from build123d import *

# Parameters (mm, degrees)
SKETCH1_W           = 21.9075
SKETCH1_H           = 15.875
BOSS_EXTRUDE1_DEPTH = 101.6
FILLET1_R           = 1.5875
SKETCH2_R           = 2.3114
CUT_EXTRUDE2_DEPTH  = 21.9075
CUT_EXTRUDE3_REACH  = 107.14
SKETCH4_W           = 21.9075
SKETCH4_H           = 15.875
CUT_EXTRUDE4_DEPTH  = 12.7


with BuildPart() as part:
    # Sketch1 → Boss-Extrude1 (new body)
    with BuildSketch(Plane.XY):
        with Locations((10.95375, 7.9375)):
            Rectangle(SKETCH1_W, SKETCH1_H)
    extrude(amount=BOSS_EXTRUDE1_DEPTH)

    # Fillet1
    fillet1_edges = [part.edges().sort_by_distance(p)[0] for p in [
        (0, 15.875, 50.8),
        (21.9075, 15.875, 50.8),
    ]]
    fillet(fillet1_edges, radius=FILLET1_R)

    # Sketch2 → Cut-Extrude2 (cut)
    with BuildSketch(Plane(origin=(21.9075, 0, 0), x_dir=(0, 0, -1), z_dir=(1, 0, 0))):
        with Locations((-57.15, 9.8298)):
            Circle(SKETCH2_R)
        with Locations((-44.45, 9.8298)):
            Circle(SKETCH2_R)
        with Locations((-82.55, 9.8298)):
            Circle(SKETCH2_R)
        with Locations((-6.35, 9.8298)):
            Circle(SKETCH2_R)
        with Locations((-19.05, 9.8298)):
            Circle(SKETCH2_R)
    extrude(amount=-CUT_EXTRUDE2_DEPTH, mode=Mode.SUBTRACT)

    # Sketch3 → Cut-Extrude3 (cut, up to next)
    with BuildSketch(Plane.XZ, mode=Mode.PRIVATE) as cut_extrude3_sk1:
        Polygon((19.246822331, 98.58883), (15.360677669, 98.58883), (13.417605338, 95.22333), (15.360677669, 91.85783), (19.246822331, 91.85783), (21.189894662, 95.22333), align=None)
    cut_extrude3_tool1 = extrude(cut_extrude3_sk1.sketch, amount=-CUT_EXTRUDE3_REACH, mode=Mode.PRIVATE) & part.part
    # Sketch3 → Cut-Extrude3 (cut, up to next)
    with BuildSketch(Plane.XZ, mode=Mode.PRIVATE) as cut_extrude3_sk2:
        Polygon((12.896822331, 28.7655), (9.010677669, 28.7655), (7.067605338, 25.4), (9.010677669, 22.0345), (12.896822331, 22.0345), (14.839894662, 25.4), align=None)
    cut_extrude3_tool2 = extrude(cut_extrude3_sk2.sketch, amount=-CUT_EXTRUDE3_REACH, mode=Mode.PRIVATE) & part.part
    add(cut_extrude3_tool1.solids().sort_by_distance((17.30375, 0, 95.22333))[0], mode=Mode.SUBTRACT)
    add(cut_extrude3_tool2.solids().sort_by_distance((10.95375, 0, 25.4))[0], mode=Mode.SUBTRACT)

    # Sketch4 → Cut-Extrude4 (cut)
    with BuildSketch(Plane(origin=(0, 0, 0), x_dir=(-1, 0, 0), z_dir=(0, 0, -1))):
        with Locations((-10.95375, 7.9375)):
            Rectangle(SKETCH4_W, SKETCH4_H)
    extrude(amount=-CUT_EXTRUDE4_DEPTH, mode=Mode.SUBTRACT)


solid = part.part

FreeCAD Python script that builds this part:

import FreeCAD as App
import Part
import Sketcher
from FreeCAD import Vector
Q = App.Units.Quantity


def edges_at(feature, points):
    """Names of the edges that pass closest to the given points."""
    edges = feature.Shape.Edges
    near = lambda p: min(range(len(edges)), key=lambda i: edges[i].distToShape(Part.Vertex(*p))[0])
    return sorted({f"Edge{near(p) + 1}" for p in points})

doc = App.newDocument("Part")
body = doc.addObject("PartDesign::Body", "Body")

sketch1 = body.newObject("Sketcher::SketchObject", "Sketch")
sketch1.AttachmentSupport = (doc.getObject("XY_Plane"), [""])
sketch1.MapMode = "FlatFace"
sketch1.addGeometry([
    Part.LineSegment(Vector(0, 16, 0), Vector(0, 0, 0)),
    Part.LineSegment(Vector(0, 0, 0), Vector(22, 0, 0)),
    Part.LineSegment(Vector(22, 0, 0), Vector(22, 16, 0)),
    Part.LineSegment(Vector(22, 16, 0), Vector(0, 16, 0)),
], False)
sketch1.addConstraint([
    Sketcher.Constraint("Coincident", 0, 2, 1, 1),
    Sketcher.Constraint("Coincident", 1, 2, 2, 1),
    Sketcher.Constraint("Coincident", 2, 2, 3, 1),
    Sketcher.Constraint("Coincident", 3, 2, 0, 1),
    Sketcher.Constraint("Vertical", 0),
    Sketcher.Constraint("Horizontal", 1),
    Sketcher.Constraint("Vertical", 2),
    Sketcher.Constraint("Horizontal", 3),
    Sketcher.Constraint("Coincident", 0, 2, -1, 1),
    Sketcher.Constraint("DistanceY", 0, 2, 0, 1, Q("0.625 in")),
    Sketcher.Constraint("DistanceX", 1, 1, 1, 2, Q("0.8625 in")),
])
pad1 = body.newObject("PartDesign::Pad", "Pad")
pad1.Profile = sketch1
pad1.Length = Q("4 in")
doc.recompute()

fillet = body.newObject("PartDesign::Fillet", "Fillet")
fillet.Base = (pad1, edges_at(pad1, [(0, 15.875, 50.8), (21.907, 15.875, 50.8)]))
fillet.Radius = Q("0.0625 in")

sketch2 = body.newObject("Sketcher::SketchObject", "Sketch001")
sketch2.AttachmentSupport = (doc.getObject("YZ_Plane"), [""])
sketch2.MapMode = "FlatFace"
sketch2.AttachmentOffset = App.Placement(Vector(0, 0, 0.8625 * 25.4), App.Rotation())
sketch2.addGeometry([
    Part.Circle(Vector(9.8, 57.1, 0), Vector(0, 0, 1), 2.3),
    Part.Circle(Vector(9.8, 44.5, 0), Vector(0, 0, 1), 2.3),
    Part.Circle(Vector(9.8, 82.5, 0), Vector(0, 0, 1), 2.3),
    Part.Circle(Vector(9.8, 6.3, 0), Vector(0, 0, 1), 2.3),
    Part.Circle(Vector(9.8, 19.1, 0), Vector(0, 0, 1), 2.3),
], False)
sketch2.addConstraint([
    Sketcher.Constraint("Equal", 0, 1),
    Sketcher.Constraint("Equal", 1, 2),
    Sketcher.Constraint("Equal", 2, 3),
    Sketcher.Constraint("Equal", 3, 4),
    Sketcher.Constraint("Vertical", 0, 3, 1, 3),
    Sketcher.Constraint("Vertical", 1, 3, 2, 3),
    Sketcher.Constraint("Vertical", 2, 3, 3, 3),
    Sketcher.Constraint("Vertical", 3, 3, 4, 3),
    Sketcher.Constraint("Diameter", 0, Q("0.182 in")),
    Sketcher.Constraint("DistanceY", 0, 3, 2, 3, Q("1 in")),
    Sketcher.Constraint("DistanceY", 3, 3, 0, 3, Q("2 in")),
    Sketcher.Constraint("DistanceY", 4, 3, 1, 3, Q("1 in")),
    Sketcher.Constraint("DistanceY", 1, 3, 0, 3, Q("0.5 in")),
    Sketcher.Constraint("DistanceY", -1, 1, 0, 3, Q("2.25 in")),
    Sketcher.Constraint("DistanceX", -1, 1, 0, 3, Q("0.387 in")),
])
pocket1 = body.newObject("PartDesign::Pocket", "Pocket")
pocket1.Profile = sketch2
pocket1.Length = Q("0.8625 in")

sketch3 = body.newObject("Sketcher::SketchObject", "Sketch002")
sketch3.AttachmentSupport = (doc.getObject("XZ_Plane"), [""])
sketch3.MapMode = "FlatFace"
sketch3.addGeometry([
    Part.LineSegment(Vector(19.2, 98.6, 0), Vector(15.4, 98.6, 0)),
    Part.LineSegment(Vector(15.4, 98.6, 0), Vector(13.4, 95.2, 0)),
    Part.LineSegment(Vector(13.4, 95.2, 0), Vector(15.4, 91.9, 0)),
    Part.LineSegment(Vector(15.4, 91.9, 0), Vector(19.2, 91.9, 0)),
    Part.LineSegment(Vector(19.2, 91.9, 0), Vector(21.2, 95.2, 0)),
    Part.LineSegment(Vector(21.2, 95.2, 0), Vector(19.2, 98.6, 0)),
], False)
sketch3.addConstraint([
    Sketcher.Constraint("Coincident", 0, 2, 1, 1),
    Sketcher.Constraint("Coincident", 1, 2, 2, 1),
    Sketcher.Constraint("Coincident", 2, 2, 3, 1),
    Sketcher.Constraint("Coincident", 3, 2, 4, 1),
    Sketcher.Constraint("Coincident", 4, 2, 5, 1),
    Sketcher.Constraint("Coincident", 5, 2, 0, 1),
    Sketcher.Constraint("Horizontal", 0),
    Sketcher.Constraint("Horizontal", 3),
    Sketcher.Constraint("Parallel", 1, 4),
    Sketcher.Constraint("Parallel", 2, 5),
    Sketcher.Constraint("Horizontal", 1, 2, 4, 2),
    Sketcher.Constraint("Vertical", 0, 2, 2, 2),
    Sketcher.Constraint("Vertical", 3, 2, 5, 2),
    Sketcher.Constraint("Angle", 1, Q("-120 deg")),
    Sketcher.Constraint("DistanceY", 2, 2, 0, 2, Q("0.265 in")),
    Sketcher.Constraint("DistanceX", 0, 2, 0, 1, Q("3.886145 mm")),
    Sketcher.Constraint("DistanceY", -1, 1, 0, 2, Q("98.58883 mm")),
    Sketcher.Constraint("DistanceX", -1, 1, 0, 2, Q("15.360678 mm")),
])
pocket2 = body.newObject("PartDesign::Pocket", "Pocket001")
pocket2.Profile = sketch3
pocket2.Type = "UpToFirst"

sketch4 = body.newObject("Sketcher::SketchObject", "Sketch003")
sketch4.AttachmentSupport = (doc.getObject("XZ_Plane"), [""])
sketch4.MapMode = "FlatFace"
sketch4.addGeometry([
    Part.LineSegment(Vector(12.9, 28.8, 0), Vector(9, 28.8, 0)),
    Part.LineSegment(Vector(9, 28.8, 0), Vector(7.1, 25.4, 0)),
    Part.LineSegment(Vector(7.1, 25.4, 0), Vector(9, 22, 0)),
    Part.LineSegment(Vector(9, 22, 0), Vector(12.9, 22, 0)),
    Part.LineSegment(Vector(12.9, 22, 0), Vector(14.8, 25.4, 0)),
    Part.LineSegment(Vector(14.8, 25.4, 0), Vector(12.9, 28.8, 0)),
], False)
sketch4.addConstraint([
    Sketcher.Constraint("Coincident", 0, 2, 1, 1),
    Sketcher.Constraint("Coincident", 1, 2, 2, 1),
    Sketcher.Constraint("Coincident", 2, 2, 3, 1),
    Sketcher.Constraint("Coincident", 3, 2, 4, 1),
    Sketcher.Constraint("Coincident", 4, 2, 5, 1),
    Sketcher.Constraint("Coincident", 5, 2, 0, 1),
    Sketcher.Constraint("Horizontal", 0),
    Sketcher.Constraint("Horizontal", 3),
    Sketcher.Constraint("Parallel", 1, 4),
    Sketcher.Constraint("Parallel", 2, 5),
    Sketcher.Constraint("Horizontal", 1, 2, 4, 2),
    Sketcher.Constraint("Vertical", 0, 2, 2, 2),
    Sketcher.Constraint("Vertical", 3, 2, 5, 2),
    Sketcher.Constraint("DistanceY", -1, 1, 1, 2, Q("1 in")),
    Sketcher.Constraint("Angle", 1, Q("-120 deg")),
    Sketcher.Constraint("DistanceY", 2, 2, 0, 2, Q("0.265 in")),
    Sketcher.Constraint("DistanceX", 0, 2, 0, 1, Q("3.886145 mm")),
    Sketcher.Constraint("DistanceX", -1, 1, 0, 2, Q("9.010678 mm")),
])
pocket3 = body.newObject("PartDesign::Pocket", "Pocket002")
pocket3.Profile = sketch4
pocket3.Type = "UpToFirst"

sketch5 = body.newObject("Sketcher::SketchObject", "Sketch004")
sketch5.AttachmentSupport = (doc.getObject("XY_Plane"), [""])
sketch5.MapMode = "FlatFace"
sketch5.addGeometry([
    Part.LineSegment(Vector(22, 16, 0), Vector(22, 0, 0)),
    Part.LineSegment(Vector(22, 0, 0), Vector(0, 0, 0)),
    Part.LineSegment(Vector(0, 0, 0), Vector(0, 16, 0)),
    Part.LineSegment(Vector(0, 16, 0), Vector(22, 16, 0)),
], False)
sketch5.addConstraint([
    Sketcher.Constraint("Coincident", 0, 2, 1, 1),
    Sketcher.Constraint("Coincident", 1, 2, 2, 1),
    Sketcher.Constraint("Coincident", 2, 2, 3, 1),
    Sketcher.Constraint("Coincident", 3, 2, 0, 1),
    Sketcher.Constraint("Vertical", 0),
    Sketcher.Constraint("Horizontal", 1),
    Sketcher.Constraint("Vertical", 2),
    Sketcher.Constraint("Horizontal", 3),
    Sketcher.Constraint("Coincident", 1, 2, -1, 1),
    Sketcher.Constraint("DistanceY", 0, 2, 0, 1, Q("0.625 in")),
    Sketcher.Constraint("DistanceX", 1, 2, 1, 1, Q("0.8625 in")),
])
pocket4 = body.newObject("PartDesign::Pocket", "Pocket003")
pocket4.Profile = sketch5
pocket4.Length = Q("0.5 in")
pocket4.Reversed = True

doc.recompute()
